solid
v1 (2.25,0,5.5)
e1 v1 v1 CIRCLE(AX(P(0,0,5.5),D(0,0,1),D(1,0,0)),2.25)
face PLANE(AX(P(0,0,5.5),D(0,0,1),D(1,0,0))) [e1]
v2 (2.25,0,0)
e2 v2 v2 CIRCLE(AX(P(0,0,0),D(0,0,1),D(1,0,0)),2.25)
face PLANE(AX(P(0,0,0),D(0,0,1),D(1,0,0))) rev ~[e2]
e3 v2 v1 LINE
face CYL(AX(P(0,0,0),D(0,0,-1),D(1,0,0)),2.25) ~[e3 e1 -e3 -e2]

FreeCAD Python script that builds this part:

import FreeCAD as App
import Part
import Sketcher

V = App.Vector

doc = App.newDocument("Part")
params = doc.addObject("Spreadsheet::Sheet", "Params")
for row, (alias, value) in enumerate([
    ("sketch1_diameter", "4.5 mm"),
    ("pad1_length", "5.5 mm"),
], start=1):
    params.set(f"A{row}", alias)
    params.set(f"B{row}", "=" + value)
    params.setAlias(f"B{row}", alias)

body = doc.addObject("PartDesign::Body", "Body")

# Sketch on XY plane
sketch1 = body.newObject("Sketcher::SketchObject", "Sketch")
sketch1.AttachmentSupport = (doc.getObject("XY_Plane"), [""])
sketch1.MapMode = "FlatFace"
sketch1.addGeometry(Part.Circle(V(0, 0, 0), V(0, 0, 1), 2.2), False)
sketch1.addConstraint(Sketcher.Constraint("Coincident", 0, 3, -1, 1))
sketch1.addConstraint(Sketcher.Constraint("Diameter", 0, 4.5))
sketch1.setExpression("Constraints[1]", "Params.sketch1_diameter")
pad1 = body.newObject("PartDesign::Pad", "Pad")
pad1.Profile = sketch1
pad1.setExpression("Length", "Params.pad1_length")

doc.recompute()
